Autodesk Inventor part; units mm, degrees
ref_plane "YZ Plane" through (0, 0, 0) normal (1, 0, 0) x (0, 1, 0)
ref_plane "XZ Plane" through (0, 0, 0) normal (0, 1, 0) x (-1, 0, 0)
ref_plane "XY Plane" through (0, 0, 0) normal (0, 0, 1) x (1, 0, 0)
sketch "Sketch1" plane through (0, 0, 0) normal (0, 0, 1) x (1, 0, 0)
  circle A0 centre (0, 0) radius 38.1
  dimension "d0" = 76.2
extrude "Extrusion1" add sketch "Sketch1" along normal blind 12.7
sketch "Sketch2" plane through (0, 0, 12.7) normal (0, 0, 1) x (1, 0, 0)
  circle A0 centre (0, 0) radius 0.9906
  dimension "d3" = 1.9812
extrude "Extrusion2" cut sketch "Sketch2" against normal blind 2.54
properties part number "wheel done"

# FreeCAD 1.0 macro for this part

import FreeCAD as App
import Part
import Sketcher

V = App.Vector
Q = App.Units.Quantity

doc = App.newDocument("Part")
body = doc.addObject("PartDesign::Body", "Body")

sketch1 = body.newObject("Sketcher::SketchObject", "Sketch")
sketch1.AttachmentSupport = (doc.getObject("XY_Plane"), [""])
sketch1.MapMode = "FlatFace"
sketch1.addGeometry(Part.Circle(V(0, 0, 0), V(0, 0, 1), 38), False)
sketch1.addConstraint([
    Sketcher.Constraint("Coincident", 0, 3, -1, 1),
    Sketcher.Constraint("Diameter", 0, Q("3 in")),
])
pad1 = body.newObject("PartDesign::Pad", "Pad")
pad1.Profile = sketch1
pad1.Length = Q("0.5 in")

sketch2 = body.newObject("Sketcher::SketchObject", "Sketch001")
sketch2.AttachmentSupport = (doc.getObject("XY_Plane"), [""])
sketch2.MapMode = "FlatFace"
sketch2.AttachmentOffset = App.Placement(V(0, 0, 0.5 * 25.4), App.Rotation())
sketch2.addGeometry(Part.Circle(V(0, 0, 0), V(0, 0, 1), 1), False)
sketch2.addConstraint([
    Sketcher.Constraint("Coincident", 0, 3, -1, 1),
    Sketcher.Constraint("Diameter", 0, Q("0.078 in")),
])
pocket1 = body.newObject("PartDesign::Pocket", "Pocket")
pocket1.Profile = sketch2
pocket1.Length = Q("0.1 in")

doc.recompute()
